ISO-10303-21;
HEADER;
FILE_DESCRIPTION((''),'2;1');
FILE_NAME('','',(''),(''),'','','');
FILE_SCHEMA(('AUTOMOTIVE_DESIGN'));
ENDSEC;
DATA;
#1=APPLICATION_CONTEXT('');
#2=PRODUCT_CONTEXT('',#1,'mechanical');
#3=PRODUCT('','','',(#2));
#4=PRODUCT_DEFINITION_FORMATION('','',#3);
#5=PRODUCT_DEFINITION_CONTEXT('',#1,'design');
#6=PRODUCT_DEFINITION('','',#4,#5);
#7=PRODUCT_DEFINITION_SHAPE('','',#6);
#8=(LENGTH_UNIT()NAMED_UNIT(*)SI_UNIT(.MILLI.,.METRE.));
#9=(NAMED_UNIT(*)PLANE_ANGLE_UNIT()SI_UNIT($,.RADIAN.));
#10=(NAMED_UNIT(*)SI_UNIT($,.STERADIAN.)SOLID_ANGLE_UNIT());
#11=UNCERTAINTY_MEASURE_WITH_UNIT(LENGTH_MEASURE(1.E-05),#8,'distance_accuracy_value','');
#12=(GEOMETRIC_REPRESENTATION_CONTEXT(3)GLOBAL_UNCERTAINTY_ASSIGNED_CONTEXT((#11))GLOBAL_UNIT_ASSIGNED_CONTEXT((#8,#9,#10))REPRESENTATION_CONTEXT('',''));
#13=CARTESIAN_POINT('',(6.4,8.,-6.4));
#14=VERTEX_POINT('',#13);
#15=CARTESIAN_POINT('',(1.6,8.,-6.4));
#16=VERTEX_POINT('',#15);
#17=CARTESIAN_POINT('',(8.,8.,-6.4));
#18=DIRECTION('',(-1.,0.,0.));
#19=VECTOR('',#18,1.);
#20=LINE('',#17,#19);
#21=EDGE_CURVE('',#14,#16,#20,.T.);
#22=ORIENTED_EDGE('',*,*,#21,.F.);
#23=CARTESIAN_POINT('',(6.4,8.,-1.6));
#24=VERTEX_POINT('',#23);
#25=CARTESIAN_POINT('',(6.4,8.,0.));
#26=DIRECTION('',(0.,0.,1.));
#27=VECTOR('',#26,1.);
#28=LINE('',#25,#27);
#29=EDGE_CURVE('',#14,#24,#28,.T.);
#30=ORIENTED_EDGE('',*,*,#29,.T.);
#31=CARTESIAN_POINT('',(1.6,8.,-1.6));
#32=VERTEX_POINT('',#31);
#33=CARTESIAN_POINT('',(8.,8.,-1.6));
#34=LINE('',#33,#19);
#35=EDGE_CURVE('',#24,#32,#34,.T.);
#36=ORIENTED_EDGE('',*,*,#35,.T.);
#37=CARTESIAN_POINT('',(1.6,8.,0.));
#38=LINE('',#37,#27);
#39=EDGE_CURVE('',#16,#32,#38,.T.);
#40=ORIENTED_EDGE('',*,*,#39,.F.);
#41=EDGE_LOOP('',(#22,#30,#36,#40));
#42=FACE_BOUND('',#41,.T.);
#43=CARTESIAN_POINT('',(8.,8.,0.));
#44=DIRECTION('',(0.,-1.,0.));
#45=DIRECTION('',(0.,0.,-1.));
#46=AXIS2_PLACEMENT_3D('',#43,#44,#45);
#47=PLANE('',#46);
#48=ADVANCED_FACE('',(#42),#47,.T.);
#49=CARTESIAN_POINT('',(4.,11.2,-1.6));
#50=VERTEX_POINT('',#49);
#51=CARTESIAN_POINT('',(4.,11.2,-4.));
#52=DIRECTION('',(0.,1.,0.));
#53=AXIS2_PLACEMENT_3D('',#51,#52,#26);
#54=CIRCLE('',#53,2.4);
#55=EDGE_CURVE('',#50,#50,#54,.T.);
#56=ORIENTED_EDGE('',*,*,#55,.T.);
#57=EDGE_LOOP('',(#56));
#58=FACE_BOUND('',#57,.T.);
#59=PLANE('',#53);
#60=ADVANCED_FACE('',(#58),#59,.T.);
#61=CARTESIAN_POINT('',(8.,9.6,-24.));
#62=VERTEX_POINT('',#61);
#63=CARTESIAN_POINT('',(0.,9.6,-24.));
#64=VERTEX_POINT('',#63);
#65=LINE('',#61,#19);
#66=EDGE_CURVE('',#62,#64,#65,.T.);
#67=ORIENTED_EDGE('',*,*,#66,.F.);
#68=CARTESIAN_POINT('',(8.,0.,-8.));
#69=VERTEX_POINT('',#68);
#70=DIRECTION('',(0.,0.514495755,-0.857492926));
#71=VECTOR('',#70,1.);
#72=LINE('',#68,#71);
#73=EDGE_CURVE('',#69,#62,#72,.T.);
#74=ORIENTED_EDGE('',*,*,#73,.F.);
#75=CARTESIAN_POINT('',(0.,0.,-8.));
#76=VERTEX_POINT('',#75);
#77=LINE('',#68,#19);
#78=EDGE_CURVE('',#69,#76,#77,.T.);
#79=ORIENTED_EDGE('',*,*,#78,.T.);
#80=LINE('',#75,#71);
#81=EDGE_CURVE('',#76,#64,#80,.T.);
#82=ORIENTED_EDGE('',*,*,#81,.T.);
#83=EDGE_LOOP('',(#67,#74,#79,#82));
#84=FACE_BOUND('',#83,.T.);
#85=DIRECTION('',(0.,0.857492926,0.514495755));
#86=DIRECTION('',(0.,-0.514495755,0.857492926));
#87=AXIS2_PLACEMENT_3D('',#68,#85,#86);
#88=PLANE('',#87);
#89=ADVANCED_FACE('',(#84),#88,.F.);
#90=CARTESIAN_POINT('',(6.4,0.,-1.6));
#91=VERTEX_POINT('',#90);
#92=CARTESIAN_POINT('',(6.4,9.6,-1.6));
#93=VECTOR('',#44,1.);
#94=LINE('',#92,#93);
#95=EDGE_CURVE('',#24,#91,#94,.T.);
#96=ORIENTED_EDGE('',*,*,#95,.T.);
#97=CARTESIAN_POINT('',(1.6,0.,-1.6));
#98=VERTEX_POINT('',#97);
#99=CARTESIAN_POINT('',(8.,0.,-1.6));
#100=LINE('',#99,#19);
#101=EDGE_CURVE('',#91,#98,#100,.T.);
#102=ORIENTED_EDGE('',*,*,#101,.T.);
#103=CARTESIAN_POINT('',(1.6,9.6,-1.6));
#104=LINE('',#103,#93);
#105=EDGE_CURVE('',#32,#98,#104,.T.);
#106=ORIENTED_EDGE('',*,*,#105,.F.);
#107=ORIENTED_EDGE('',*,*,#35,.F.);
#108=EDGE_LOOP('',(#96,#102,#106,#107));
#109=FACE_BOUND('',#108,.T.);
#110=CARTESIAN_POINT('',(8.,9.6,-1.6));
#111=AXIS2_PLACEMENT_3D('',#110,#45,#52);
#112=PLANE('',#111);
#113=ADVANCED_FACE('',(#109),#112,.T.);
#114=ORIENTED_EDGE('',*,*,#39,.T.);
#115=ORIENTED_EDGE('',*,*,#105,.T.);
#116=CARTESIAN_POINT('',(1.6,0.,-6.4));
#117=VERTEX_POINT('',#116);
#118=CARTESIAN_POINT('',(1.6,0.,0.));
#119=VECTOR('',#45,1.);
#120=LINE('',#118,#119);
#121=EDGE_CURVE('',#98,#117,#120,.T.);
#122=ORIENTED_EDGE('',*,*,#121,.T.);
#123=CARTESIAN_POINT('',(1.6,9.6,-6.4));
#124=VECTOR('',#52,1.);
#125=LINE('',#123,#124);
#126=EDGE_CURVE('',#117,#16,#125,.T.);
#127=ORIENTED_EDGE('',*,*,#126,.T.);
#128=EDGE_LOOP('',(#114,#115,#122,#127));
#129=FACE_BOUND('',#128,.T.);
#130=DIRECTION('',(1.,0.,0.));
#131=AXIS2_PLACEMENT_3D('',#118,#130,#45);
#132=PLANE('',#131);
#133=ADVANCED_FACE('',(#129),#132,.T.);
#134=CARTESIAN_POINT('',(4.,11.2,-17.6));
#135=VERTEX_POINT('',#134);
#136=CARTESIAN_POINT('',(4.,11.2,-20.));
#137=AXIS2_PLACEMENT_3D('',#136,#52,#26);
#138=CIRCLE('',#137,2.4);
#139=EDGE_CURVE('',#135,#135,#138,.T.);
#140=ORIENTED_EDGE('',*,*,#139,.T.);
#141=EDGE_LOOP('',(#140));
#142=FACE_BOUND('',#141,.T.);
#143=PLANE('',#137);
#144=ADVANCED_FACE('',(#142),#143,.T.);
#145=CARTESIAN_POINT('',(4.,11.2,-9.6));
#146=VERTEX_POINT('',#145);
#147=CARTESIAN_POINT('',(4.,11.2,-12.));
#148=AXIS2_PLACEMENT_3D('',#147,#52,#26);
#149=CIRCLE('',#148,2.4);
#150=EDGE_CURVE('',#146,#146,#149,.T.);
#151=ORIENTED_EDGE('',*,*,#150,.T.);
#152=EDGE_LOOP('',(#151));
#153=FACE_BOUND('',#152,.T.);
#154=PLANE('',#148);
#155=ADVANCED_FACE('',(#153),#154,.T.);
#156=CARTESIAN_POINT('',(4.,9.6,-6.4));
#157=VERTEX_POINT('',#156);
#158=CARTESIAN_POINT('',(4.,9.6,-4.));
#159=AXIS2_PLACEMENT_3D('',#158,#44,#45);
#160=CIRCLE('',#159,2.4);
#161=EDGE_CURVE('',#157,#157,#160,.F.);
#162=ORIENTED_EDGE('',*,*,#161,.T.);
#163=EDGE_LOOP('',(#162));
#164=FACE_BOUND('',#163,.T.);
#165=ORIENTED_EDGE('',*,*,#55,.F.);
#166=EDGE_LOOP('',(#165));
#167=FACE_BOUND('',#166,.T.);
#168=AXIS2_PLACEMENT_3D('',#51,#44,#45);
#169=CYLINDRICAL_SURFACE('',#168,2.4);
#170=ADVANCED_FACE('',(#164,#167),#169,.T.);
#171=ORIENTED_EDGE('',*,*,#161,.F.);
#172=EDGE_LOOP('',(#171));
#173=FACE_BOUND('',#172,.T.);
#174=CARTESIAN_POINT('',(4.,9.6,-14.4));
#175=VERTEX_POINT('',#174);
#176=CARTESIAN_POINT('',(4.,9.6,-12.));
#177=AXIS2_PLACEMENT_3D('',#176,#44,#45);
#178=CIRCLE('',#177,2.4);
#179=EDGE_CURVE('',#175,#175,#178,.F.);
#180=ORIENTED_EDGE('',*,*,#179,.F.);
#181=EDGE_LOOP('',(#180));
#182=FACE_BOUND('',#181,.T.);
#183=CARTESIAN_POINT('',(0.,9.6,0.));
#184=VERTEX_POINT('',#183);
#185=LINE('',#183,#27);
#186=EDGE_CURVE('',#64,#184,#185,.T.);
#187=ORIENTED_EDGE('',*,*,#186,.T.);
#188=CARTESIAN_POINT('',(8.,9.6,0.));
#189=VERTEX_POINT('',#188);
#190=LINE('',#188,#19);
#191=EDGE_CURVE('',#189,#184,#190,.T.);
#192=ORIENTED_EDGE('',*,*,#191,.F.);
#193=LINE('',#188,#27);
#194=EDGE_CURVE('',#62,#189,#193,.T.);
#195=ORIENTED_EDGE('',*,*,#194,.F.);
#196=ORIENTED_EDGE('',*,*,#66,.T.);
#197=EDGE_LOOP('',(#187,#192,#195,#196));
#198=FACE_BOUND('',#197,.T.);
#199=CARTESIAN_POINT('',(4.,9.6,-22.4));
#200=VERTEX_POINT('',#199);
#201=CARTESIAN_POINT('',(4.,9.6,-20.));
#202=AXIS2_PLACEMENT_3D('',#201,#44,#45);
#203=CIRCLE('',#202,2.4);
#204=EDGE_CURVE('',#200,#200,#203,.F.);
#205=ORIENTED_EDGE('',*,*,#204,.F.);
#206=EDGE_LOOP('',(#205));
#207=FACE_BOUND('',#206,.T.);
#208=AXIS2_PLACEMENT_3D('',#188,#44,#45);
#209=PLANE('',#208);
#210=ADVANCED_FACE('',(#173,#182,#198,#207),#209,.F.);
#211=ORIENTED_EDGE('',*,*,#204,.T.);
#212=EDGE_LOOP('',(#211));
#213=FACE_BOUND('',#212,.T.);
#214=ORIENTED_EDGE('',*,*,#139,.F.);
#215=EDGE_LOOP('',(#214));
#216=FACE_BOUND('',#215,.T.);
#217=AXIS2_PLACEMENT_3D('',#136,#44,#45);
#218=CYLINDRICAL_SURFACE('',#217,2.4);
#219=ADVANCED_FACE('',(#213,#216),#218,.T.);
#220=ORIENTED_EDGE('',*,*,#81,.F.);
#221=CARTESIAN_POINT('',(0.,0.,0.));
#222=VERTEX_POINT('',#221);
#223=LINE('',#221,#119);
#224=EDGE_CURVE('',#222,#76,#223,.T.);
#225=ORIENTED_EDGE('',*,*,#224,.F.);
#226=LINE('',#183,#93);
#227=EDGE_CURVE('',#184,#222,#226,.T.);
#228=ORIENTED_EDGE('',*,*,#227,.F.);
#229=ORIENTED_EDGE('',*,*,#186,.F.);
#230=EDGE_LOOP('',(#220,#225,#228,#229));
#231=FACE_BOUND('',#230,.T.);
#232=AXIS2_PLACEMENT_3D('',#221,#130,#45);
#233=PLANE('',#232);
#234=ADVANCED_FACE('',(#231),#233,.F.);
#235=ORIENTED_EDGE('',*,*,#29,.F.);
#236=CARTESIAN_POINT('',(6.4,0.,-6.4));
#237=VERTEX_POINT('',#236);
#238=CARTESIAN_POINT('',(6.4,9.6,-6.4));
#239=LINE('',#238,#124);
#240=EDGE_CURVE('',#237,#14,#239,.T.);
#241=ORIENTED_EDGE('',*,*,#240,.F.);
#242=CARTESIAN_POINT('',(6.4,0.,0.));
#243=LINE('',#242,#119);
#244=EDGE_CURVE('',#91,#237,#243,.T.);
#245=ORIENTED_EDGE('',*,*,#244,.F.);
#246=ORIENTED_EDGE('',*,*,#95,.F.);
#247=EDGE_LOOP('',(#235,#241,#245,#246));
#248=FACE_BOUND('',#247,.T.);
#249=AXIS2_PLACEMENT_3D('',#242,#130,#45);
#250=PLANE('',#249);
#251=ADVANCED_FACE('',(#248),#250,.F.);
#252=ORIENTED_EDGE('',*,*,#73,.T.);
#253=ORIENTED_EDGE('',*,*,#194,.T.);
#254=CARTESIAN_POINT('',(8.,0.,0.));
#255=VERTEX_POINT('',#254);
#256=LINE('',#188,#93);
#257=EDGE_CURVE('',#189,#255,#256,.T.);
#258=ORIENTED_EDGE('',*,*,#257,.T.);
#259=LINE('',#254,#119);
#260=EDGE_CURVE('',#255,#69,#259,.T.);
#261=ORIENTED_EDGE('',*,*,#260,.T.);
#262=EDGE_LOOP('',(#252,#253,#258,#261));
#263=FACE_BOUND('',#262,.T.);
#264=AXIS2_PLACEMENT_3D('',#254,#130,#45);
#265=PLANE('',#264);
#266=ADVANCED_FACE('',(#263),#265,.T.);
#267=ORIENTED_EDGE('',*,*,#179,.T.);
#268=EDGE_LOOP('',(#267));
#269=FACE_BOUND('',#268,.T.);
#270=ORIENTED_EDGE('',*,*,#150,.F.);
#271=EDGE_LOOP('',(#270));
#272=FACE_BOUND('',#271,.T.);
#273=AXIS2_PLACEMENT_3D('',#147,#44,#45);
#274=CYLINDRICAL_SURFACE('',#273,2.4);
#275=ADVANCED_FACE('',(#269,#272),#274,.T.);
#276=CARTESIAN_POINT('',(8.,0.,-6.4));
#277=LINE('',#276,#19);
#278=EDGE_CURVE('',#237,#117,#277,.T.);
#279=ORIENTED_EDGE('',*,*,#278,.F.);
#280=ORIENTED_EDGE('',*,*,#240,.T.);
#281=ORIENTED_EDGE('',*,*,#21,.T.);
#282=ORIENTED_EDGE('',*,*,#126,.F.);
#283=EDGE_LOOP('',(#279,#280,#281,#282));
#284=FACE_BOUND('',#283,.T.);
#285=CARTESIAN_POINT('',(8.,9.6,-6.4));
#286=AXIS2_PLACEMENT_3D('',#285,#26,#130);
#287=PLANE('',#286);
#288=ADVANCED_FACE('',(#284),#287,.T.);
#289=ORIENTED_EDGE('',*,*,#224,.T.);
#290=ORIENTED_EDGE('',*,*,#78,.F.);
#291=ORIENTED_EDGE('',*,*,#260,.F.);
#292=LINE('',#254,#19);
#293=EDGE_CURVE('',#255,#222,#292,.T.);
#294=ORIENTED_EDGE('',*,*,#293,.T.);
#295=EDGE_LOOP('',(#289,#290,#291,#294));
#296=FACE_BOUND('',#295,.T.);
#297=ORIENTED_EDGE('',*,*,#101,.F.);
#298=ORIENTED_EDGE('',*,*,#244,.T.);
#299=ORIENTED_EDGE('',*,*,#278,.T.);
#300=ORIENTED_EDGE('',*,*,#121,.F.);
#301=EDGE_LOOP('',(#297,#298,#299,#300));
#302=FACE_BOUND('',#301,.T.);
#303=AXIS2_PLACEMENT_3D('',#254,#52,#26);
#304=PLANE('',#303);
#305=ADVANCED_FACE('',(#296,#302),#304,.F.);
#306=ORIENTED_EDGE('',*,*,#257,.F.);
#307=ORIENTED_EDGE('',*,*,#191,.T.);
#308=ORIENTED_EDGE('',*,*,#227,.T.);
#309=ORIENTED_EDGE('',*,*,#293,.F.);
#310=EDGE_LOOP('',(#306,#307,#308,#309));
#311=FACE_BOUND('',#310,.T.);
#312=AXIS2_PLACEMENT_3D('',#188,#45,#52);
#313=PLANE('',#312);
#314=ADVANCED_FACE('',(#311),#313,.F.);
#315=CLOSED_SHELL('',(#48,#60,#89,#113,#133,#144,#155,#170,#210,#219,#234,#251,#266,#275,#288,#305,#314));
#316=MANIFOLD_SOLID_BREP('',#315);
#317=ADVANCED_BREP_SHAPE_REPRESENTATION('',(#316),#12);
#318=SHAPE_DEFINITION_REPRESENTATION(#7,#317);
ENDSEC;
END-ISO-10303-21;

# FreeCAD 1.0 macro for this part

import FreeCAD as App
import Part
import Sketcher
from FreeCAD import Vector
Q = App.Units.Quantity


def faces_at(feature, points):
    """Names of the faces that lie closest to the given points."""
    faces = feature.Shape.Faces
    near = lambda p: min(range(len(faces)), key=lambda i: faces[i].distToShape(Part.Vertex(*p))[0])
    return sorted({f"Face{near(p) + 1}" for p in points})

doc = App.newDocument("Part")
body = doc.addObject("PartDesign::Body", "Body")

# Sketch on YZ plane
sketch1 = doc.addObject("Sketcher::SketchObject", "Sketch")
body.addObject(sketch1)
sketch1.AttachmentSupport = (doc.YZ_Plane, [""])
sketch1.MapMode = "FlatFace"
sketch1.addGeometry([
    Part.LineSegment(Vector(10, 0, 0), Vector(0, 0, 0)),
    Part.LineSegment(Vector(0, 0, 0), Vector(0, -8, 0)),
    Part.LineSegment(Vector(0, -8, 0), Vector(10, -8, 0)),
    Part.LineSegment(Vector(10, -8, 0), Vector(10, 0, 0)),
], False)
sketch1.addConstraint([
    Sketcher.Constraint("Coincident", 0, 2, 1, 1),
    Sketcher.Constraint("Coincident", 1, 2, 2, 1),
    Sketcher.Constraint("Coincident", 2, 2, 3, 1),
    Sketcher.Constraint("Coincident", 3, 2, 0, 1),
    Sketcher.Constraint("Horizontal", 0),
    Sketcher.Constraint("Vertical", 1),
    Sketcher.Constraint("Horizontal", 2),
    Sketcher.Constraint("Vertical", 3),
    Sketcher.Constraint("Coincident", 0, 2, -1, 1),
    Sketcher.Constraint("DistanceY", 1, 2, 1, 1, Q("8 mm")),
    Sketcher.Constraint("DistanceX", 0, 2, 0, 1, Q("9.6 mm")),
])
pad1 = doc.addObject("PartDesign::Pad", "Pad")
body.addObject(pad1)
pad1.Profile = sketch1
pad1.Length = 8
doc.recompute()

thickness = doc.addObject("PartDesign::Thickness", "Thickness")
body.addObject(thickness)
thickness.Base = (pad1, faces_at(pad1, [(4, 0, -4)]))
thickness.Value = 1.6
thickness.Reversed = True
thickness.Join = "Intersection"

# Sketch on YZ plane
sketch2 = doc.addObject("Sketcher::SketchObject", "Sketch001")
body.addObject(sketch2)
sketch2.AttachmentSupport = (doc.YZ_Plane, [""])
sketch2.MapMode = "FlatFace"
sketch2.addGeometry([
    Part.LineSegment(Vector(0, -8, 0), Vector(10, -24, 0)),
    Part.LineSegment(Vector(10, -24, 0), Vector(10, -8, 0)),
    Part.LineSegment(Vector(10, -8, 0), Vector(0, -8, 0)),
], False)
sketch2.addConstraint([
    Sketcher.Constraint("Coincident", 0, 2, 1, 1),
    Sketcher.Constraint("Coincident", 1, 2, 2, 1),
    Sketcher.Constraint("Coincident", 2, 2, 0, 1),
    Sketcher.Constraint("Vertical", 1),
    Sketcher.Constraint("Horizontal", 2),
    Sketcher.Constraint("PointOnObject", 2, 2, -2),
    Sketcher.Constraint("DistanceY", 1, 1, 1, 2, Q("16 mm")),
    Sketcher.Constraint("DistanceX", 2, 2, 2, 1, Q("9.6 mm")),
    Sketcher.Constraint("DistanceY", 0, 2, -1, 1, Q("24 mm")),
])
pad2 = doc.addObject("PartDesign::Pad", "Pad001")
body.addObject(pad2)
pad2.Profile = sketch2
pad2.Length = 8

# Sketch on XZ plane
sketch3 = doc.addObject("Sketcher::SketchObject", "Sketch002")
body.addObject(sketch3)
sketch3.AttachmentSupport = (doc.XZ_Plane, [""])
sketch3.MapMode = "FlatFace"
sketch3.AttachmentOffset = App.Placement(Vector(0, 0, -9.6), App.Rotation())
sketch3.addGeometry(Part.Circle(Vector(4, -4, 0), Vector(0, 0, 1), 2.4), False)
sketch3.addConstraint([
    Sketcher.Constraint("Diameter", 0, Q("4.8 mm")),
    Sketcher.Constraint("DistanceX", -1, 1, 0, 3, Q("4 mm")),
    Sketcher.Constraint("DistanceY", 0, 3, -1, 1, Q("4 mm")),
])
pad3 = doc.addObject("PartDesign::Pad", "Pad002")
body.addObject(pad3)
pad3.Profile = sketch3
pad3.Length = 1.6
pad3.Reversed = True
doc.recompute()

linearpattern = doc.addObject("PartDesign::LinearPattern", "LinearPattern")
body.addObject(linearpattern)
linearpattern.Originals = [pad3]
linearpattern.Direction = (doc.Z_Axis, [""])
linearpattern.Mode = "offset"
linearpattern.Offset = 8
linearpattern.Occurrences = 3
linearpattern.Reversed = True
body.Tip = linearpattern

doc.recompute()
